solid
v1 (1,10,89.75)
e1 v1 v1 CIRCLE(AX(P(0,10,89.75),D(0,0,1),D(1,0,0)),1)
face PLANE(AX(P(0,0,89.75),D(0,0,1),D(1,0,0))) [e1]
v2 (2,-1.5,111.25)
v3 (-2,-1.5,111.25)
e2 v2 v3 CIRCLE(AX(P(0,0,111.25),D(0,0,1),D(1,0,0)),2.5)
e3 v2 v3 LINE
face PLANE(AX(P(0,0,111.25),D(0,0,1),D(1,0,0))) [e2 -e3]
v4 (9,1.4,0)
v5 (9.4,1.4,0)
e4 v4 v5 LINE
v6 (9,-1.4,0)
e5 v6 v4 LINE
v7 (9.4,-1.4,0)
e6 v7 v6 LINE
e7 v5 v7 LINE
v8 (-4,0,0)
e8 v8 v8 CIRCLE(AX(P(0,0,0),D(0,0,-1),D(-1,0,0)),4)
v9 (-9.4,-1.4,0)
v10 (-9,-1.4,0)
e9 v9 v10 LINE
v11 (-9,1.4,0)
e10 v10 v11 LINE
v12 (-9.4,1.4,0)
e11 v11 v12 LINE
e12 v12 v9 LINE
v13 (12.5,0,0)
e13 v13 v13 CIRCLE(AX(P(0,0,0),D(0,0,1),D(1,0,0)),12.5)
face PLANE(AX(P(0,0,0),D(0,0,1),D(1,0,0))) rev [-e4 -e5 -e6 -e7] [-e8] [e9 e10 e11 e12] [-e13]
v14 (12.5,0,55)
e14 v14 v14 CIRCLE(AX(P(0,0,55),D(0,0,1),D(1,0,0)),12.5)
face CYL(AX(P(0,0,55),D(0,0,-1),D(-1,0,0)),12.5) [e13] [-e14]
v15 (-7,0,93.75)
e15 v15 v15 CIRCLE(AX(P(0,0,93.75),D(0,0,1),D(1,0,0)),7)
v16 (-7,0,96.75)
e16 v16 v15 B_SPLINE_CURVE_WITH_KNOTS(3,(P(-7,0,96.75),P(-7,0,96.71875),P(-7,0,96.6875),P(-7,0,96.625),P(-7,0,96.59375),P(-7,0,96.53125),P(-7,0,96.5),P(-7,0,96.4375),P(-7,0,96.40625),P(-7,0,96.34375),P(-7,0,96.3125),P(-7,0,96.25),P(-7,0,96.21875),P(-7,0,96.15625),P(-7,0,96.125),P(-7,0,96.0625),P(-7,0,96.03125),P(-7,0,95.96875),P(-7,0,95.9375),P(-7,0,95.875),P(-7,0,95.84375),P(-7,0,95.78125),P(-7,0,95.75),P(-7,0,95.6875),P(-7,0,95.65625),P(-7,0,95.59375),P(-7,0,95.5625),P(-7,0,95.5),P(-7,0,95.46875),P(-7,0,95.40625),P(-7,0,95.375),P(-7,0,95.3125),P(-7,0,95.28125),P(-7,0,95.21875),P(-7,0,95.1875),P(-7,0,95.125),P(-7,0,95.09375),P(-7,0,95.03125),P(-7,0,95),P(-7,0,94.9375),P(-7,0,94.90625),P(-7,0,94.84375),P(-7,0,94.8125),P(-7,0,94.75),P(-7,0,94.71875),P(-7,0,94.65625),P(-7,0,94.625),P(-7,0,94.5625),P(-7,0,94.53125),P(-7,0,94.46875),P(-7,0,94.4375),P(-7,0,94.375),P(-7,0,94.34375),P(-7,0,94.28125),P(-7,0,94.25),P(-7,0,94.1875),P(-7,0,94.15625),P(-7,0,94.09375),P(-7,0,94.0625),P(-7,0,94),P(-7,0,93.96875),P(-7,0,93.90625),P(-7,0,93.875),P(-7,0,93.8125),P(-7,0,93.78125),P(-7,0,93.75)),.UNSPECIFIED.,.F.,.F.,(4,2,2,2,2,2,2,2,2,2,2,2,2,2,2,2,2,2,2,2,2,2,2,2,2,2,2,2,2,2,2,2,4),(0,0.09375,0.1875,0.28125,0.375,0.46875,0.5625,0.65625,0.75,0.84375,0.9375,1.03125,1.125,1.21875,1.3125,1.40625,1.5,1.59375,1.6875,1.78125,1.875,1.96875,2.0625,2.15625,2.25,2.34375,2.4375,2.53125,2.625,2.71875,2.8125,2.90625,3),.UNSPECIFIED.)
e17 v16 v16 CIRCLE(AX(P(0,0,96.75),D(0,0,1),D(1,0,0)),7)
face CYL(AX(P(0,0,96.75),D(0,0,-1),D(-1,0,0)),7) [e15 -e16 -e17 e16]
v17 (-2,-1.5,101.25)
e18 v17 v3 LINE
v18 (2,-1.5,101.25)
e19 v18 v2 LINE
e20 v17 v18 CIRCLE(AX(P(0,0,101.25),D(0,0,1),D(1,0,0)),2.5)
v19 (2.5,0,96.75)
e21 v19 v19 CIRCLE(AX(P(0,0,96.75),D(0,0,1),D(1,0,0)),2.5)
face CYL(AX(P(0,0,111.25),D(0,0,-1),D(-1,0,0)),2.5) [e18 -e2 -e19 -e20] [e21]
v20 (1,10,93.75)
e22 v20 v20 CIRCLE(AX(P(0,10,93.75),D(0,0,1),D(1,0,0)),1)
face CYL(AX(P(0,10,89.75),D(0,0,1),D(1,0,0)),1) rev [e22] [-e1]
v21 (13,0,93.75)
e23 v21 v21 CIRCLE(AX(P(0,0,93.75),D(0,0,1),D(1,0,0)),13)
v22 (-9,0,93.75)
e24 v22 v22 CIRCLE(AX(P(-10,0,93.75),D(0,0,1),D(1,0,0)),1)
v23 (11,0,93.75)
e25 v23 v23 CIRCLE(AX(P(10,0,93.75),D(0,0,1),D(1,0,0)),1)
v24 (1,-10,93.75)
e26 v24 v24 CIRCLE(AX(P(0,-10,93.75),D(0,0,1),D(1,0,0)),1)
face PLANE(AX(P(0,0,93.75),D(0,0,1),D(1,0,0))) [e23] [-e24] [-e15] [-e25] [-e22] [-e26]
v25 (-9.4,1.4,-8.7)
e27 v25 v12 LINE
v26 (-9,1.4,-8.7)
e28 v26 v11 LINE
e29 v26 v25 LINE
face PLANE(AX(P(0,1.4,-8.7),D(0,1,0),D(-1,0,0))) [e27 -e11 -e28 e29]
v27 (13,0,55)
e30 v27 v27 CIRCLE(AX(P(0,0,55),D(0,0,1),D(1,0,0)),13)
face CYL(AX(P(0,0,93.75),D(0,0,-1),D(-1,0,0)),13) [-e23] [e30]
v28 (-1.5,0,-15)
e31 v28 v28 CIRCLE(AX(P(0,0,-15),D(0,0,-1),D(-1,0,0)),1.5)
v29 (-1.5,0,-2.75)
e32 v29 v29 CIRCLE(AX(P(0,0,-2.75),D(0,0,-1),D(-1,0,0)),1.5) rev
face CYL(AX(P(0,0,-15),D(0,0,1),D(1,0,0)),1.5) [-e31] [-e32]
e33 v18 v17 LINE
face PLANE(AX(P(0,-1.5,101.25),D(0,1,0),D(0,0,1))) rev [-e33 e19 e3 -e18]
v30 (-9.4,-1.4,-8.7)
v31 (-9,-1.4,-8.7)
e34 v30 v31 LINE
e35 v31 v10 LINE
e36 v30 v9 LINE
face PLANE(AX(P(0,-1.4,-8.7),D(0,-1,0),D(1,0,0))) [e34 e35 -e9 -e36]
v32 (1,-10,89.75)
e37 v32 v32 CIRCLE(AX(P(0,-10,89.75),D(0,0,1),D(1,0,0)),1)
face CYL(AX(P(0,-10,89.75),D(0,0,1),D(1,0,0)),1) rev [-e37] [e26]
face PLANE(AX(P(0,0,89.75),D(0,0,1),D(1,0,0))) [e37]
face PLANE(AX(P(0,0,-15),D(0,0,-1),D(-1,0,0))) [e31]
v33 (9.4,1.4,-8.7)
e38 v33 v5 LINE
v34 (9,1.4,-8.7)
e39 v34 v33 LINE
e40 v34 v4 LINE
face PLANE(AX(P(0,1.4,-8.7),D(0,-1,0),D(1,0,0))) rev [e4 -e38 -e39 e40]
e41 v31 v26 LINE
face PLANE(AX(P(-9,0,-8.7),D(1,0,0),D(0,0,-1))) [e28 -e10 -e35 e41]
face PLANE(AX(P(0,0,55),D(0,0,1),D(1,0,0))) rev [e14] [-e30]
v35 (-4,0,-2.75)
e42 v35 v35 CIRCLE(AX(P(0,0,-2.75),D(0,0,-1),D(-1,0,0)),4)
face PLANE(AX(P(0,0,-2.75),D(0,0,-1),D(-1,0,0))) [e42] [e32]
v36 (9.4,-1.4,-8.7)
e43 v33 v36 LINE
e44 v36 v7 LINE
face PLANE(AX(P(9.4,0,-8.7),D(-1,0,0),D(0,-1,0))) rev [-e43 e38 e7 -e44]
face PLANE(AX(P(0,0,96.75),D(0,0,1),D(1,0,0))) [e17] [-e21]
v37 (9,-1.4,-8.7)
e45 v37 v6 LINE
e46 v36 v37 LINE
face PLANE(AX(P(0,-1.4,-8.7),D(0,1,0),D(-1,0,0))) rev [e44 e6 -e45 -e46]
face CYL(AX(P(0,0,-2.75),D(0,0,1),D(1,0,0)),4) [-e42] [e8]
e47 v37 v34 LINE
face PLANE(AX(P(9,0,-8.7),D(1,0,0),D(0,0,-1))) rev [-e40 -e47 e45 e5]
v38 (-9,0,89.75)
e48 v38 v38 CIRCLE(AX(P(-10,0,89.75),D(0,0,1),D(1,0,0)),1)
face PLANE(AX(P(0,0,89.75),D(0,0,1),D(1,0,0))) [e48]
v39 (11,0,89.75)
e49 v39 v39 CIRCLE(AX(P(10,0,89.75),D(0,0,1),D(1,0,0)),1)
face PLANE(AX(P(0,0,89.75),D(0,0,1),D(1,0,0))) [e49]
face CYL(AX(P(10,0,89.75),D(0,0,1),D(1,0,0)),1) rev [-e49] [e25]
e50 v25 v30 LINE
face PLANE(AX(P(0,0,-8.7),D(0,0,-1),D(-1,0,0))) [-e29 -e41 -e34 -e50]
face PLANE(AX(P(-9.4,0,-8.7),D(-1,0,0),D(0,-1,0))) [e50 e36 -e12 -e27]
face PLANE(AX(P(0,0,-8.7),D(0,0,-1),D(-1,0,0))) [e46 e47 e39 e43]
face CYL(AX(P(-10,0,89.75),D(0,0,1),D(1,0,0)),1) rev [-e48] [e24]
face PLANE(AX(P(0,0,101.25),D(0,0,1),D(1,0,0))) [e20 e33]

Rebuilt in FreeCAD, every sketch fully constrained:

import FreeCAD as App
import Part
import Sketcher
from FreeCAD import Vector
Q = App.Units.Quantity


def add_polygon(sketch, points):
    """Adds a closed chain of lines whose ends are joined by coincident constraints."""
    first, n = sketch.GeometryCount, len(points)
    for a, b in zip(points, points[1:] + points[:1]):
        sketch.addGeometry(Part.LineSegment(App.Vector(*a, 0), App.Vector(*b, 0)), False)
    for i in range(n):
        sketch.addConstraint(Sketcher.Constraint("Coincident", first + i, 2, first + (i + 1) % n, 1))

doc = App.newDocument("Part")
body = doc.addObject("PartDesign::Body", "Body")

sketch1 = doc.addObject("Sketcher::SketchObject", "Sketch")
body.addObject(sketch1)
sketch1.AttachmentSupport = (doc.XY_Plane, [""])
sketch1.MapMode = "FlatFace"
sketch1.addGeometry(Part.Circle(Vector(0, 0, 0), Vector(0, 0, 1), 12), False)
sketch1.addConstraint(Sketcher.Constraint("Coincident", 0, 3, -1, 1))
sketch1.addConstraint(Sketcher.Constraint("Diameter", 0, Q("25 mm")))
pad1 = doc.addObject("PartDesign::Pad", "Pad")
body.addObject(pad1)
pad1.Profile = sketch1
pad1.Length = 55

sketch2 = doc.addObject("Sketcher::SketchObject", "Sketch001")
body.addObject(sketch2)
sketch2.AttachmentSupport = (doc.XY_Plane, [""])
sketch2.MapMode = "FlatFace"
sketch2.AttachmentOffset = App.Placement(Vector(0, 0, 55), App.Rotation())
sketch2.addGeometry(Part.Circle(Vector(0, 0, 0), Vector(0, 0, 1), 13), False)
sketch2.addConstraint(Sketcher.Constraint("Coincident", 0, 3, -1, 1))
sketch2.addConstraint(Sketcher.Constraint("Diameter", 0, Q("26 mm")))
pad2 = doc.addObject("PartDesign::Pad", "Pad001")
body.addObject(pad2)
pad2.Profile = sketch2
pad2.Length = 38.75

sketch3 = doc.addObject("Sketcher::SketchObject", "Sketch002")
body.addObject(sketch3)
sketch3.AttachmentSupport = (doc.XY_Plane, [""])
sketch3.MapMode = "FlatFace"
sketch3.AttachmentOffset = App.Placement(Vector(0, 0, 93.75), App.Rotation())
sketch3.addGeometry(Part.Circle(Vector(0, 0, 0), Vector(0, 0, 1), 7), False)
sketch3.addConstraint(Sketcher.Constraint("Coincident", 0, 3, -1, 1))
sketch3.addConstraint(Sketcher.Constraint("Diameter", 0, Q("14 mm")))
pad3 = doc.addObject("PartDesign::Pad", "Pad002")
body.addObject(pad3)
pad3.Profile = sketch3
pad3.Length = 3

sketch4 = doc.addObject("Sketcher::SketchObject", "Sketch003")
body.addObject(sketch4)
sketch4.AttachmentSupport = (doc.XY_Plane, [""])
sketch4.MapMode = "FlatFace"
sketch4.AttachmentOffset = App.Placement(Vector(0, 0, 96.75), App.Rotation())
sketch4.addGeometry(Part.Circle(Vector(0, 0, 0), Vector(0, 0, 1), 2.5), False)
sketch4.addConstraint(Sketcher.Constraint("Coincident", 0, 3, -1, 1))
sketch4.addConstraint(Sketcher.Constraint("Diameter", 0, Q("5 mm")))
pad4 = doc.addObject("PartDesign::Pad", "Pad003")
body.addObject(pad4)
pad4.Profile = sketch4
pad4.Length = 14.5

sketch5 = doc.addObject("Sketcher::SketchObject", "Sketch004")
body.addObject(sketch5)
sketch5.AttachmentSupport = (doc.XY_Plane, [""])
sketch5.MapMode = "FlatFace"
sketch5.AttachmentOffset = App.Placement(Vector(0, 0, 93.75), App.Rotation())
sketch5.addGeometry(Part.Circle(Vector(0, 10, 0), Vector(0, 0, 1), 1), False)
sketch5.addGeometry(Part.Circle(Vector(10, 0, 0), Vector(0, 0, 1), 1), False)
sketch5.addGeometry(Part.Circle(Vector(0, -10, 0), Vector(0, 0, 1), 1), False)
sketch5.addGeometry(Part.Circle(Vector(-10, 0, 0), Vector(0, 0, 1), 1), False)
sketch5.addConstraint(Sketcher.Constraint("Equal", 0, 1))
sketch5.addConstraint(Sketcher.Constraint("Equal", 1, 2))
sketch5.addConstraint(Sketcher.Constraint("Equal", 2, 3))
sketch5.addConstraint(Sketcher.Constraint("Symmetric", 0, 3, 2, 3, -1, 1))
sketch5.addConstraint(Sketcher.Constraint("Symmetric", 1, 3, 3, 3, -1, 1))
sketch5.addConstraint(Sketcher.Constraint("PointOnObject", 0, 3, -2))
sketch5.addConstraint(Sketcher.Constraint("PointOnObject", 1, 3, -1))
sketch5.addConstraint(Sketcher.Constraint("Diameter", 0, Q("2 mm")))
sketch5.addConstraint(Sketcher.Constraint("DistanceY", -1, 1, 0, 3, Q("10 mm")))
sketch5.addConstraint(Sketcher.Constraint("DistanceX", -1, 1, 1, 3, Q("10 mm")))
pocket1 = doc.addObject("PartDesign::Pocket", "Pocket")
body.addObject(pocket1)
pocket1.Profile = sketch5
pocket1.Length = 4

sketch6 = doc.addObject("Sketcher::SketchObject", "Sketch005")
body.addObject(sketch6)
sketch6.AttachmentSupport = (doc.XY_Plane, [""])
sketch6.MapMode = "FlatFace"
sketch6.addGeometry(Part.Circle(Vector(0, 0, 0), Vector(0, 0, 1), 4), False)
sketch6.addConstraint(Sketcher.Constraint("Coincident", 0, 3, -1, 1))
sketch6.addConstraint(Sketcher.Constraint("Diameter", 0, Q("8 mm")))
pad5 = doc.addObject("PartDesign::Pad", "Pad004")
body.addObject(pad5)
pad5.Profile = sketch6
pad5.Length = 2.75
pad5.Reversed = True

sketch7 = doc.addObject("Sketcher::SketchObject", "Sketch006")
body.addObject(sketch7)
sketch7.AttachmentSupport = (doc.XY_Plane, [""])
sketch7.MapMode = "FlatFace"
sketch7.addGeometry(Part.Circle(Vector(0, 0, 0), Vector(0, 0, 1), 1.5), False)
sketch7.addConstraint(Sketcher.Constraint("Coincident", 0, 3, -1, 1))
sketch7.addConstraint(Sketcher.Constraint("Diameter", 0, Q("3 mm")))
pad6 = doc.addObject("PartDesign::Pad", "Pad005")
body.addObject(pad6)
pad6.Profile = sketch7
pad6.Length = 15
pad6.Reversed = True

sketch8 = doc.addObject("Sketcher::SketchObject", "Sketch007")
body.addObject(sketch8)
sketch8.AttachmentSupport = (doc.XY_Plane, [""])
sketch8.MapMode = "FlatFace"
add_polygon(sketch8, [(-9, 1.4), (-9, -1.4), (-9.4, -1.4), (-9.4, 1.4)])
add_polygon(sketch8, [(9.4, 1.4), (9.4, -1.4), (9, -1.4), (9, 1.4)])
sketch8.addConstraint(Sketcher.Constraint("Vertical", 0))
sketch8.addConstraint(Sketcher.Constraint("Horizontal", 1))
sketch8.addConstraint(Sketcher.Constraint("Vertical", 2))
sketch8.addConstraint(Sketcher.Constraint("Horizontal", 3))
sketch8.addConstraint(Sketcher.Constraint("Vertical", 4))
sketch8.addConstraint(Sketcher.Constraint("Horizontal", 5))
sketch8.addConstraint(Sketcher.Constraint("Vertical", 6))
sketch8.addConstraint(Sketcher.Constraint("Horizontal", 7))
sketch8.addConstraint(Sketcher.Constraint("Symmetric", 2, 2, 4, 2, -1, 1))
sketch8.addConstraint(Sketcher.Constraint("Symmetric", 0, 2, 6, 2, -1, 1))
sketch8.addConstraint(Sketcher.Constraint("Horizontal", 1, 2, 4, 2))
sketch8.addConstraint(Sketcher.Constraint("DistanceX", 1, 2, 1, 1, Q("0.4 mm")))
sketch8.addConstraint(Sketcher.Constraint("DistanceY", 0, 2, 0, 1, Q("2.8 mm")))
sketch8.addConstraint(Sketcher.Constraint("DistanceX", 0, 2, -1, 1, Q("9 mm")))
pad7 = doc.addObject("PartDesign::Pad", "Pad006")
body.addObject(pad7)
pad7.Profile = sketch8
pad7.Length = 8.7
pad7.Reversed = True

sketch9 = doc.addObject("Sketcher::SketchObject", "Sketch008")
body.addObject(sketch9)
sketch9.AttachmentSupport = (doc.XY_Plane, [""])
sketch9.MapMode = "FlatFace"
sketch9.AttachmentOffset = App.Placement(Vector(0, 0, 111.25), App.Rotation())
add_polygon(sketch9, [(54, -2), (-54, -2), (-54, -105), (54, -105)])
sketch9.addConstraint(Sketcher.Constraint("Horizontal", 0))
sketch9.addConstraint(Sketcher.Constraint("Vertical", 1))
sketch9.addConstraint(Sketcher.Constraint("Horizontal", 2))
sketch9.addConstraint(Sketcher.Constraint("Vertical", 3))
sketch9.addConstraint(Sketcher.Constraint("DistanceY", 0, 2, -1, 1, Q("1.5 mm")))
sketch9.addConstraint(Sketcher.Constraint("DistanceX", 0, 2, 0, 1, Q("107.450584 mm")))
sketch9.addConstraint(Sketcher.Constraint("DistanceY", 1, 2, 1, 1, Q("103.450584 mm")))
sketch9.addConstraint(Sketcher.Constraint("DistanceX", 0, 2, -1, 1, Q("53.725292 mm")))
pocket2 = doc.addObject("PartDesign::Pocket", "Pocket001")
body.addObject(pocket2)
pocket2.Profile = sketch9
pocket2.Length = 10

doc.recompute()
